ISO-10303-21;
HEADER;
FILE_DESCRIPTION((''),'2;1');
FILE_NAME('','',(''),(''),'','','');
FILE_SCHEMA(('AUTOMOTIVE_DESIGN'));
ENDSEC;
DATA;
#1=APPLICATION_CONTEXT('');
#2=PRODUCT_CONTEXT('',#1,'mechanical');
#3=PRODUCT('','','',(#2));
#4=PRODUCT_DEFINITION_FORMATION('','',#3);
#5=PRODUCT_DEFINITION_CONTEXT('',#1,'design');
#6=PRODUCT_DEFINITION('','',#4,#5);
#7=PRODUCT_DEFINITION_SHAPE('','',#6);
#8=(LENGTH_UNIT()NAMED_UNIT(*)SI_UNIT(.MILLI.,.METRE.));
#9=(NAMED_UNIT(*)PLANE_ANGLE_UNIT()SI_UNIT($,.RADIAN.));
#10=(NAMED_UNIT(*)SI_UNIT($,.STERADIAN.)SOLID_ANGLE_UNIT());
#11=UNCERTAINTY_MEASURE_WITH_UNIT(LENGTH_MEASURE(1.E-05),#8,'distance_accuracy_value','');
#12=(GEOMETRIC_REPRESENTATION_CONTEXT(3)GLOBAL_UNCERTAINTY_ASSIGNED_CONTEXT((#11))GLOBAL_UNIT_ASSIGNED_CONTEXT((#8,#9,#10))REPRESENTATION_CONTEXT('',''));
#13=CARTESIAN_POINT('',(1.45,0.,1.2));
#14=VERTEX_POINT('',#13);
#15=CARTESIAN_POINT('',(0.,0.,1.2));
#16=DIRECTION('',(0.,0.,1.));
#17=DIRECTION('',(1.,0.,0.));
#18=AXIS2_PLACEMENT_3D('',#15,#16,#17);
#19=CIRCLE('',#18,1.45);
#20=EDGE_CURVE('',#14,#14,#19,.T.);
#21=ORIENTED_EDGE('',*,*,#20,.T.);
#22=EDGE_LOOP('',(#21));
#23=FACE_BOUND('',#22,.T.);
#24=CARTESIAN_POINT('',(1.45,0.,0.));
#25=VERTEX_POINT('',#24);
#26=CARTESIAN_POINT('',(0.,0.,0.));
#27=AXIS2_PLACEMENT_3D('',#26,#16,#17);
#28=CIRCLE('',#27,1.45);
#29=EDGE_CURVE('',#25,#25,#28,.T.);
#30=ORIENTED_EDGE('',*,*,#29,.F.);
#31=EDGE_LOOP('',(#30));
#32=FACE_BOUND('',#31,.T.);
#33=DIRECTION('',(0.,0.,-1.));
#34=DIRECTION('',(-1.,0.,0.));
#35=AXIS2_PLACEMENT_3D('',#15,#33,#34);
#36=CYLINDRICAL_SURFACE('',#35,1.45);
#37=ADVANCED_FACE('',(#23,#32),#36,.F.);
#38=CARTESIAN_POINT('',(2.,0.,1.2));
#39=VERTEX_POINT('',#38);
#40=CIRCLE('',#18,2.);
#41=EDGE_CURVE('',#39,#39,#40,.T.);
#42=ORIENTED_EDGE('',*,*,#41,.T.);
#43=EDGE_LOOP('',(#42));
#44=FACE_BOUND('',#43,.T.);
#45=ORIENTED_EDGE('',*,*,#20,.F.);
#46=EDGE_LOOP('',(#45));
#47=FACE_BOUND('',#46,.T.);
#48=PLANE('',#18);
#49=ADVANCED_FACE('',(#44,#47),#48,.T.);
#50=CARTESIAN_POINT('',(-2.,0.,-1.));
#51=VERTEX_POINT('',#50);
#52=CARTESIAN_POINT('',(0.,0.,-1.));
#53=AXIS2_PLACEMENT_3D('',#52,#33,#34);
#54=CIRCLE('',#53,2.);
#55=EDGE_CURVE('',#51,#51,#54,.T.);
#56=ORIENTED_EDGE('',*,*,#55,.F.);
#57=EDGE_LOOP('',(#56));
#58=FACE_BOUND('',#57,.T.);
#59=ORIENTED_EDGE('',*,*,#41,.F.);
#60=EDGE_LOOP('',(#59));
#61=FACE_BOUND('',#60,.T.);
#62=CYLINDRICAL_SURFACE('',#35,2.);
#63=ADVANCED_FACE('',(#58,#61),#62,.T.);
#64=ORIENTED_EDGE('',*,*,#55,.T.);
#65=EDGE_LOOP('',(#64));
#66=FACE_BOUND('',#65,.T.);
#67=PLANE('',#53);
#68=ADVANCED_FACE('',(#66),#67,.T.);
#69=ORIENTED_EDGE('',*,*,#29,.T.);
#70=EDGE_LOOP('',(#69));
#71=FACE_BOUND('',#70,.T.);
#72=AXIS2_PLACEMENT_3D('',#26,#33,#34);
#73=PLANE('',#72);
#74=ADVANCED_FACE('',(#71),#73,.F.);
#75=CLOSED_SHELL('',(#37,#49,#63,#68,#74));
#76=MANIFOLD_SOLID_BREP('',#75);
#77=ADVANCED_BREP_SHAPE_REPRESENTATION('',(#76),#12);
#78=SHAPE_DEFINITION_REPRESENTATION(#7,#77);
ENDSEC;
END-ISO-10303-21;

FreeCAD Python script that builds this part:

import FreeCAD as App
import Part
import Sketcher
Q = App.Units.Quantity

doc = App.newDocument("Part")
body = doc.addObject("PartDesign::Body", "Body")

# Sketch on XY plane
sketch1 = doc.addObject("Sketcher::SketchObject", "Sketch")
body.addObject(sketch1)
sketch1.AttachmentSupport = (doc.XY_Plane, [""])
sketch1.MapMode = "FlatFace"
sketch1.addGeometry([
    Part.Circle(App.Vector(0, 0, 0), App.Vector(0, 0, 1), 2),
    Part.Circle(App.Vector(0, 0, 0), App.Vector(0, 0, 1), 1.4),
], False)
sketch1.addConstraint([
    Sketcher.Constraint("Coincident", 0, 3, -1, 1),
    Sketcher.Constraint("Coincident", 1, 3, -1, 1),
    Sketcher.Constraint("Diameter", 0, Q("4 mm")),
    Sketcher.Constraint("Diameter", 1, Q("2.9 mm")),
])
pad1 = doc.addObject("PartDesign::Pad", "Pad")
body.addObject(pad1)
pad1.Profile = sketch1
pad1.Length = 1.2

# Sketch on XY plane
sketch2 = doc.addObject("Sketcher::SketchObject", "Sketch001")
body.addObject(sketch2)
sketch2.AttachmentSupport = (doc.XY_Plane, [""])
sketch2.MapMode = "FlatFace"
sketch2.AttachmentOffset = App.Placement(App.Vector(0, 0, -1), App.Rotation())
sketch2.addGeometry(Part.Circle(App.Vector(0, 0, 0), App.Vector(0, 0, 1), 2), False)
sketch2.addConstraint([
    Sketcher.Constraint("Coincident", 0, 3, -1, 1),
    Sketcher.Constraint("Diameter", 0, Q("4 mm")),
])
pad2 = doc.addObject("PartDesign::Pad", "Pad001")
body.addObject(pad2)
pad2.Profile = sketch2
pad2.Length = 1

doc.recompute()
